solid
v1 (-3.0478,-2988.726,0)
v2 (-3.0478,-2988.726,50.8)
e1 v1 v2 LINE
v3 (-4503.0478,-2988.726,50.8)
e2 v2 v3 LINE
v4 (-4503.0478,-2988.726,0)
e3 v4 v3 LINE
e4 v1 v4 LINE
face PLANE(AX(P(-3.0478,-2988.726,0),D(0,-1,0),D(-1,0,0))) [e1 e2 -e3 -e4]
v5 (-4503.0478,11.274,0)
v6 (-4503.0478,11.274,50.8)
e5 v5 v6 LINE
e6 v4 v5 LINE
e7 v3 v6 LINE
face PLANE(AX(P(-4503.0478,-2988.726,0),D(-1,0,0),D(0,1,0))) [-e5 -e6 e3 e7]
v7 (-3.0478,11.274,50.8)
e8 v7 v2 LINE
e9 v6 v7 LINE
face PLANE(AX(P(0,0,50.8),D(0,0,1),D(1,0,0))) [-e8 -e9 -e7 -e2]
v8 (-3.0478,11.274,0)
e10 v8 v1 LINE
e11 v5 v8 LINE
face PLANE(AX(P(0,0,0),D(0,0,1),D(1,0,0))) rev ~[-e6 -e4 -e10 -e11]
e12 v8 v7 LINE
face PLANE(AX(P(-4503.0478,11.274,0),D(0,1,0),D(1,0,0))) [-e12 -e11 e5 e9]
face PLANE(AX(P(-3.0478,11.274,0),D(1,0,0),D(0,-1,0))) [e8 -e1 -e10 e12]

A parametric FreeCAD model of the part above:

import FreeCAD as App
import Part
import Sketcher
from FreeCAD import Vector
Q = App.Units.Quantity

doc = App.newDocument("Part")
body = doc.addObject("PartDesign::Body", "Body")

sketch1 = body.newObject("Sketcher::SketchObject", "Sketch")
sketch1.AttachmentSupport = (doc.getObject("XY_Plane"), [""])
sketch1.MapMode = "FlatFace"
sketch1.addGeometry(Part.LineSegment(Vector(-3, 11, 0), Vector(-4503, 11, 0)), False)
sketch1.addGeometry(Part.LineSegment(Vector(-4503, 11, 0), Vector(-4503, -2989, 0)), False)
sketch1.addGeometry(Part.LineSegment(Vector(-4503, -2989, 0), Vector(-3, -2989, 0)), False)
sketch1.addGeometry(Part.LineSegment(Vector(-3, -2989, 0), Vector(-3, 11, 0)), False)
sketch1.addConstraint(Sketcher.Constraint("Coincident", 0, 2, 1, 1))
sketch1.addConstraint(Sketcher.Constraint("Coincident", 1, 2, 2, 1))
sketch1.addConstraint(Sketcher.Constraint("Coincident", 2, 2, 3, 1))
sketch1.addConstraint(Sketcher.Constraint("Coincident", 3, 2, 0, 1))
sketch1.addConstraint(Sketcher.Constraint("Horizontal", 0))
sketch1.addConstraint(Sketcher.Constraint("Vertical", 1))
sketch1.addConstraint(Sketcher.Constraint("Horizontal", 2))
sketch1.addConstraint(Sketcher.Constraint("Vertical", 3))
sketch1.addConstraint(Sketcher.Constraint("DistanceX", 0, 2, 0, 1, Q("4500 mm")))
sketch1.addConstraint(Sketcher.Constraint("DistanceY", 1, 2, 1, 1, Q("3000 mm")))
sketch1.addConstraint(Sketcher.Constraint("DistanceY", -1, 1, 0, 2, Q("11.274 mm")))
sketch1.addConstraint(Sketcher.Constraint("DistanceX", 0, 2, -1, 1, Q("4503.0478 mm")))
pad1 = body.newObject("PartDesign::Pad", "Pad")
pad1.Profile = sketch1
pad1.Length = 50.8

doc.recompute()
